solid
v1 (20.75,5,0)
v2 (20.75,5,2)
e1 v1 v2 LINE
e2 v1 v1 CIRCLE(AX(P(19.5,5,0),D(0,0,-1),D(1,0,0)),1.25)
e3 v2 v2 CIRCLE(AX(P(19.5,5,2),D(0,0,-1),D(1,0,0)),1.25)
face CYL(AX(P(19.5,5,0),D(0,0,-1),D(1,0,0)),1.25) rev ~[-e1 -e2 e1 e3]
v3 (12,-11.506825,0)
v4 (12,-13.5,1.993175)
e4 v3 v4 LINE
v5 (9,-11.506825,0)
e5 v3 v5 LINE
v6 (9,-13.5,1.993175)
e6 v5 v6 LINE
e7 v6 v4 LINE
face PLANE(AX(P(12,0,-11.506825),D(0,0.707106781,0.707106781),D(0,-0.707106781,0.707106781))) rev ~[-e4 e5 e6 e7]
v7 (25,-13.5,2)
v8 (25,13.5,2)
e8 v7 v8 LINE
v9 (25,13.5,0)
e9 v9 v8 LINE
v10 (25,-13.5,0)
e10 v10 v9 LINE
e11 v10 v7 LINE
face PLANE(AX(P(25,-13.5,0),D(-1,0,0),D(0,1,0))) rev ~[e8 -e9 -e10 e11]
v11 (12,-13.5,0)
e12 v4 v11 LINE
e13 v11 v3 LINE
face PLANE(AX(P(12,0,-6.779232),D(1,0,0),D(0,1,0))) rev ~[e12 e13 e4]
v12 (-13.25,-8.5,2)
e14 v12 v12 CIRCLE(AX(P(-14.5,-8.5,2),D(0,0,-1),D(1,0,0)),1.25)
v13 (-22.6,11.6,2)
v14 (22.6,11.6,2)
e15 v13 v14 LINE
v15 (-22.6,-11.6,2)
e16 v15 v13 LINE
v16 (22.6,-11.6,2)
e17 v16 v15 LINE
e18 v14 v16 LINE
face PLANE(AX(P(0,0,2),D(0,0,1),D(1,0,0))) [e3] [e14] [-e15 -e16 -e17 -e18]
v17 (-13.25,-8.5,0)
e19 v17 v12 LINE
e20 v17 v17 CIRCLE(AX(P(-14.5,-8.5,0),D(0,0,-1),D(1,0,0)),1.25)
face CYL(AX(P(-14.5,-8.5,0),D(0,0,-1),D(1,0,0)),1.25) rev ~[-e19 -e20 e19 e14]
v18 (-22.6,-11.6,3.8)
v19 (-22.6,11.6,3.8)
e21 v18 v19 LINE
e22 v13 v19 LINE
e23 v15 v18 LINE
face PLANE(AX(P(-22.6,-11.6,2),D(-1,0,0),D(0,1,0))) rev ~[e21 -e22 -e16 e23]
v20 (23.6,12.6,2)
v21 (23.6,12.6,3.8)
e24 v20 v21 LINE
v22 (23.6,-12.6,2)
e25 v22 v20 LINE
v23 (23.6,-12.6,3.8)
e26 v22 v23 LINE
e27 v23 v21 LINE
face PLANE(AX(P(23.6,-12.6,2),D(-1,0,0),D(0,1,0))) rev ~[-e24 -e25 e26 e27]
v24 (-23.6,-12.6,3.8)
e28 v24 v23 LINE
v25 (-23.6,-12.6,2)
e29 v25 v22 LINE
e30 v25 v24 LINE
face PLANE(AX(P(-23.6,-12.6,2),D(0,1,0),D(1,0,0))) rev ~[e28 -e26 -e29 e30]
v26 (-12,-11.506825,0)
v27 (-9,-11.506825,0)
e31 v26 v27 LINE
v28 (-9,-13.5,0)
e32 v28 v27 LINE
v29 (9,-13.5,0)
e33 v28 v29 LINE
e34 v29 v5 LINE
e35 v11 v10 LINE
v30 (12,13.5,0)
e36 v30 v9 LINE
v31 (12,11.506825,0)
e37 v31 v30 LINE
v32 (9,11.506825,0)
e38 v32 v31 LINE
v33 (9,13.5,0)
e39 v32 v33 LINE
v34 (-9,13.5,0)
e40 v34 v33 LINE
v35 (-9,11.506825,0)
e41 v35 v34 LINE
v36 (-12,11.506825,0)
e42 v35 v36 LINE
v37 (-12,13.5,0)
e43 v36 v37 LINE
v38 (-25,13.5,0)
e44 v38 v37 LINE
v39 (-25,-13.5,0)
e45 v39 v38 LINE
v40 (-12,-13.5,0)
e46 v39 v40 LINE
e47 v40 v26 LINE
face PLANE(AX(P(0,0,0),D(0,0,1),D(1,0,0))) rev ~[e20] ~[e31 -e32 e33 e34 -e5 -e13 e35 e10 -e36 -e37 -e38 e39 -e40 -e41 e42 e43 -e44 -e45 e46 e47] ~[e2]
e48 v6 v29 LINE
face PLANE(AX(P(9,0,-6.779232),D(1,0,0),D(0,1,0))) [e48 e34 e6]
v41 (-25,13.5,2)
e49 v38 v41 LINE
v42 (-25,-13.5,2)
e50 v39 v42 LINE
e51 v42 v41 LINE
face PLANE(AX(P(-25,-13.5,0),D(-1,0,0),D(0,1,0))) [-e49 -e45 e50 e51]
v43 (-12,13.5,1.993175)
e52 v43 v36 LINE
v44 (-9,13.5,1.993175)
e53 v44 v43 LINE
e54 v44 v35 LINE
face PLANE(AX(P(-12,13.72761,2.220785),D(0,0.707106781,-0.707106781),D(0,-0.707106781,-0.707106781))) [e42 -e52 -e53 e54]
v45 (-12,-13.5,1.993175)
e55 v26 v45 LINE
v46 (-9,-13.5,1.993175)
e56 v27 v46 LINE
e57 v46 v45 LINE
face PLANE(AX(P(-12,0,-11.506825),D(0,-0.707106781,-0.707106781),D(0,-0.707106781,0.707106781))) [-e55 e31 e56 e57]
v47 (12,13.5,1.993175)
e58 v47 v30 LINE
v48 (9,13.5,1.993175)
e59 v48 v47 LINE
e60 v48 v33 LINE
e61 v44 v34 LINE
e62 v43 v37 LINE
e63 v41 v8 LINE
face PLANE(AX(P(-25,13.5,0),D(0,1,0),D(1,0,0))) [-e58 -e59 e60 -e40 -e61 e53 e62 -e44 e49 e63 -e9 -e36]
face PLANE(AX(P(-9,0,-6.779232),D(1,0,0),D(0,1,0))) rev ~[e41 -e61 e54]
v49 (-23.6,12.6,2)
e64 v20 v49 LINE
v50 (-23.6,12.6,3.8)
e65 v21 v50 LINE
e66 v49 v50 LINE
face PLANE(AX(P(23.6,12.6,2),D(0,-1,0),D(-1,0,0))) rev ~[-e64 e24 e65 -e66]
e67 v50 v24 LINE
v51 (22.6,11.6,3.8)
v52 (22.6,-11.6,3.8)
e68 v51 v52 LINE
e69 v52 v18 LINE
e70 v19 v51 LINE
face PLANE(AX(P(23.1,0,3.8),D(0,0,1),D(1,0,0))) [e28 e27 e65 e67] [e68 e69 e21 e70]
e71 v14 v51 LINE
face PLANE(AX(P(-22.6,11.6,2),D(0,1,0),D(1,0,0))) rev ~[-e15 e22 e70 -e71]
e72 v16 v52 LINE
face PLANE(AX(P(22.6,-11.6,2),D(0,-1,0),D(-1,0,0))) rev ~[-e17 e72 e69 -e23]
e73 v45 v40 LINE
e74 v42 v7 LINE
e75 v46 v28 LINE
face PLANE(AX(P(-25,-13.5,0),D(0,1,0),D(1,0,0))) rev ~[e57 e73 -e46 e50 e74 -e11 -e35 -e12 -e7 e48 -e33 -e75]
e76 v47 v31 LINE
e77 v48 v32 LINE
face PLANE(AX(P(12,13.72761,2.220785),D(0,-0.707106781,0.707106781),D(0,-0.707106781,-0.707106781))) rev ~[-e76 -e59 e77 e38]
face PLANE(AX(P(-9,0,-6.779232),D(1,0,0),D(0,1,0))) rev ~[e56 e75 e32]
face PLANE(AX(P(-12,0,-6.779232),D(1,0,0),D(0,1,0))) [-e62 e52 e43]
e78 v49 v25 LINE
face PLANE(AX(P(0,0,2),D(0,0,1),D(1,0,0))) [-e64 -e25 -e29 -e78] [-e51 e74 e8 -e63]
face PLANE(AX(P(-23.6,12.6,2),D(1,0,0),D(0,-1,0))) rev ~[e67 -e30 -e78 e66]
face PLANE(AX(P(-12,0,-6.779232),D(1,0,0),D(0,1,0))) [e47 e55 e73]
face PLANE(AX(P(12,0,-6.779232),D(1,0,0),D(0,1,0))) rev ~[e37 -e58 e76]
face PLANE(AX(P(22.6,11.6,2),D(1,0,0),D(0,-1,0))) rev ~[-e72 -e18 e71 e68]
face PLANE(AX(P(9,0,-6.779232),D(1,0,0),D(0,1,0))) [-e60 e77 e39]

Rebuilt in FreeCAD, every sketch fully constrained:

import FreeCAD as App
import Part
import Sketcher
from FreeCAD import Vector
Q = App.Units.Quantity


def add_polygon(sketch, points):
    """Adds a closed chain of lines whose ends are joined by coincident constraints."""
    first, n = sketch.GeometryCount, len(points)
    for a, b in zip(points, points[1:] + points[:1]):
        sketch.addGeometry(Part.LineSegment(App.Vector(*a, 0), App.Vector(*b, 0)), False)
    for i in range(n):
        sketch.addConstraint(Sketcher.Constraint("Coincident", first + i, 2, first + (i + 1) % n, 1))

doc = App.newDocument("Part")
body = doc.addObject("PartDesign::Body", "Body")

# Sketch on XY plane
sketch1 = body.newObject("Sketcher::SketchObject", "Sketch")
sketch1.AttachmentSupport = (doc.getObject("XY_Plane"), [""])
sketch1.MapMode = "FlatFace"
add_polygon(sketch1, [(-25, 14), (-25, -14), (25, -14), (25, 14)])  # lines 0-3
sketch1.addConstraint([
    Sketcher.Constraint("Vertical", 0),
    Sketcher.Constraint("Horizontal", 1),
    Sketcher.Constraint("Vertical", 2),
    Sketcher.Constraint("Horizontal", 3),
    Sketcher.Constraint("Symmetric", 0, 2, 2, 2, -1, 1),
    Sketcher.Constraint("DistanceX", 1, 1, 1, 2, Q("50 mm")),
    Sketcher.Constraint("DistanceY", 0, 2, 0, 1, Q("27 mm")),
])
pad1 = body.newObject("PartDesign::Pad", "Pad")
pad1.Profile = sketch1
pad1.Length = 2

# Sketch on XY plane
sketch2 = body.newObject("Sketcher::SketchObject", "Sketch001")
sketch2.AttachmentSupport = (doc.getObject("XY_Plane"), [""])
sketch2.MapMode = "FlatFace"
sketch2.AttachmentOffset = App.Placement(Vector(0, 0, 2), App.Rotation())
add_polygon(sketch2, [(-24, 13), (-24, -13), (24, -13), (24, 13)])  # lines 0-3
add_polygon(sketch2, [(23, -12), (-23, -12), (-23, 12), (23, 12)])  # lines 4-7
sketch2.addConstraint([
    Sketcher.Constraint("Vertical", 0),
    Sketcher.Constraint("Horizontal", 1),
    Sketcher.Constraint("Vertical", 2),
    Sketcher.Constraint("Horizontal", 3),
    Sketcher.Constraint("Horizontal", 4),
    Sketcher.Constraint("Vertical", 5),
    Sketcher.Constraint("Horizontal", 6),
    Sketcher.Constraint("Vertical", 7),
    Sketcher.Constraint("Symmetric", 0, 2, 2, 2, -1, 1),
    Sketcher.Constraint("Symmetric", 4, 2, 6, 2, -1, 1),
    Sketcher.Constraint("DistanceX", 1, 1, 1, 2, Q("47.2 mm")),
    Sketcher.Constraint("DistanceX", 4, 2, 4, 1, Q("45.2 mm")),
    Sketcher.Constraint("DistanceY", 0, 2, 0, 1, Q("25.2 mm")),
    Sketcher.Constraint("DistanceY", 5, 1, 5, 2, Q("23.2 mm")),
])
pad2 = body.newObject("PartDesign::Pad", "Pad001")
pad2.Profile = sketch2
pad2.Length = 1.8

# Sketch on XY plane
sketch3 = body.newObject("Sketcher::SketchObject", "Sketch002")
sketch3.AttachmentSupport = (doc.getObject("XY_Plane"), [""])
sketch3.MapMode = "FlatFace"
sketch3.addGeometry([
    Part.Circle(Vector(-14.5, -8.5, 0), Vector(0, 0, 1), 1.2),
    Part.Circle(Vector(19.5, 5, 0), Vector(0, 0, 1), 1.2),
], False)
sketch3.addConstraint([
    Sketcher.Constraint("Equal", 0, 1),
    Sketcher.Constraint("Diameter", 0, Q("2.5 mm")),
    Sketcher.Constraint("DistanceY", -1, 1, 1, 3, Q("5 mm")),
    Sketcher.Constraint("DistanceX", 0, 3, 1, 3, Q("34 mm")),
    Sketcher.Constraint("DistanceX", 0, 3, -1, 1, Q("14.5 mm")),
    Sketcher.Constraint("DistanceY", 0, 3, -1, 1, Q("8.5 mm")),
])
pocket1 = body.newObject("PartDesign::Pocket", "Pocket")
pocket1.Profile = sketch3
pocket1.Length = 2
pocket1.Reversed = True

# Sketch on YZ plane
sketch4 = body.newObject("Sketcher::SketchObject", "Sketch003")
sketch4.AttachmentSupport = (doc.getObject("YZ_Plane"), [""])
sketch4.MapMode = "FlatFace"
sketch4.AttachmentOffset = App.Placement(Vector(0, 0, 12), App.Rotation())
add_polygon(sketch4, [(0, -12), (-14, 2), (-14, -12), (14, -12), (14, 2)])  # lines 0-4
sketch4.addConstraint([
    Sketcher.Constraint("Vertical", 1),
    Sketcher.Constraint("Horizontal", 2),
    Sketcher.Constraint("Vertical", 3),
    Sketcher.Constraint("Symmetric", 0, 2, 3, 2, -2),
    Sketcher.Constraint("PointOnObject", 4, 2, -2),
    Sketcher.Constraint("Perpendicular", 0, 4),
    Sketcher.Constraint("DistanceY", 1, 2, 1, 1, Q("14.0445 mm")),
    Sketcher.Constraint("DistanceX", 2, 1, 2, 2, Q("27.45522 mm")),
    Sketcher.Constraint("DistanceY", -1, 1, 0, 2, Q("2.220785 mm")),
])
pocket2 = body.newObject("PartDesign::Pocket", "Pocket001")
pocket2.Profile = sketch4
pocket2.Length = 3

# Sketch on YZ plane
sketch5 = body.newObject("Sketcher::SketchObject", "Sketch004")
sketch5.AttachmentSupport = (doc.getObject("YZ_Plane"), [""])
sketch5.MapMode = "FlatFace"
sketch5.AttachmentOffset = App.Placement(Vector(0, 0, -12), App.Rotation())
add_polygon(sketch5, [(0, -12), (-14, 2), (-14, -12), (14, -12), (14, 2)])  # lines 0-4
sketch5.addConstraint([
    Sketcher.Constraint("Vertical", 1),
    Sketcher.Constraint("Horizontal", 2),
    Sketcher.Constraint("Vertical", 3),
    Sketcher.Constraint("Symmetric", 0, 2, 3, 2, -2),
    Sketcher.Constraint("PointOnObject", 4, 2, -2),
    Sketcher.Constraint("Perpendicular", 0, 4),
    Sketcher.Constraint("DistanceY", 1, 2, 1, 1, Q("14.0445 mm")),
    Sketcher.Constraint("DistanceX", 2, 1, 2, 2, Q("27.45522 mm")),
    Sketcher.Constraint("DistanceY", -1, 1, 0, 2, Q("2.220785 mm")),
])
pocket3 = body.newObject("PartDesign::Pocket", "Pocket002")
pocket3.Profile = sketch5
pocket3.Length = 3
pocket3.Reversed = True

doc.recompute()
